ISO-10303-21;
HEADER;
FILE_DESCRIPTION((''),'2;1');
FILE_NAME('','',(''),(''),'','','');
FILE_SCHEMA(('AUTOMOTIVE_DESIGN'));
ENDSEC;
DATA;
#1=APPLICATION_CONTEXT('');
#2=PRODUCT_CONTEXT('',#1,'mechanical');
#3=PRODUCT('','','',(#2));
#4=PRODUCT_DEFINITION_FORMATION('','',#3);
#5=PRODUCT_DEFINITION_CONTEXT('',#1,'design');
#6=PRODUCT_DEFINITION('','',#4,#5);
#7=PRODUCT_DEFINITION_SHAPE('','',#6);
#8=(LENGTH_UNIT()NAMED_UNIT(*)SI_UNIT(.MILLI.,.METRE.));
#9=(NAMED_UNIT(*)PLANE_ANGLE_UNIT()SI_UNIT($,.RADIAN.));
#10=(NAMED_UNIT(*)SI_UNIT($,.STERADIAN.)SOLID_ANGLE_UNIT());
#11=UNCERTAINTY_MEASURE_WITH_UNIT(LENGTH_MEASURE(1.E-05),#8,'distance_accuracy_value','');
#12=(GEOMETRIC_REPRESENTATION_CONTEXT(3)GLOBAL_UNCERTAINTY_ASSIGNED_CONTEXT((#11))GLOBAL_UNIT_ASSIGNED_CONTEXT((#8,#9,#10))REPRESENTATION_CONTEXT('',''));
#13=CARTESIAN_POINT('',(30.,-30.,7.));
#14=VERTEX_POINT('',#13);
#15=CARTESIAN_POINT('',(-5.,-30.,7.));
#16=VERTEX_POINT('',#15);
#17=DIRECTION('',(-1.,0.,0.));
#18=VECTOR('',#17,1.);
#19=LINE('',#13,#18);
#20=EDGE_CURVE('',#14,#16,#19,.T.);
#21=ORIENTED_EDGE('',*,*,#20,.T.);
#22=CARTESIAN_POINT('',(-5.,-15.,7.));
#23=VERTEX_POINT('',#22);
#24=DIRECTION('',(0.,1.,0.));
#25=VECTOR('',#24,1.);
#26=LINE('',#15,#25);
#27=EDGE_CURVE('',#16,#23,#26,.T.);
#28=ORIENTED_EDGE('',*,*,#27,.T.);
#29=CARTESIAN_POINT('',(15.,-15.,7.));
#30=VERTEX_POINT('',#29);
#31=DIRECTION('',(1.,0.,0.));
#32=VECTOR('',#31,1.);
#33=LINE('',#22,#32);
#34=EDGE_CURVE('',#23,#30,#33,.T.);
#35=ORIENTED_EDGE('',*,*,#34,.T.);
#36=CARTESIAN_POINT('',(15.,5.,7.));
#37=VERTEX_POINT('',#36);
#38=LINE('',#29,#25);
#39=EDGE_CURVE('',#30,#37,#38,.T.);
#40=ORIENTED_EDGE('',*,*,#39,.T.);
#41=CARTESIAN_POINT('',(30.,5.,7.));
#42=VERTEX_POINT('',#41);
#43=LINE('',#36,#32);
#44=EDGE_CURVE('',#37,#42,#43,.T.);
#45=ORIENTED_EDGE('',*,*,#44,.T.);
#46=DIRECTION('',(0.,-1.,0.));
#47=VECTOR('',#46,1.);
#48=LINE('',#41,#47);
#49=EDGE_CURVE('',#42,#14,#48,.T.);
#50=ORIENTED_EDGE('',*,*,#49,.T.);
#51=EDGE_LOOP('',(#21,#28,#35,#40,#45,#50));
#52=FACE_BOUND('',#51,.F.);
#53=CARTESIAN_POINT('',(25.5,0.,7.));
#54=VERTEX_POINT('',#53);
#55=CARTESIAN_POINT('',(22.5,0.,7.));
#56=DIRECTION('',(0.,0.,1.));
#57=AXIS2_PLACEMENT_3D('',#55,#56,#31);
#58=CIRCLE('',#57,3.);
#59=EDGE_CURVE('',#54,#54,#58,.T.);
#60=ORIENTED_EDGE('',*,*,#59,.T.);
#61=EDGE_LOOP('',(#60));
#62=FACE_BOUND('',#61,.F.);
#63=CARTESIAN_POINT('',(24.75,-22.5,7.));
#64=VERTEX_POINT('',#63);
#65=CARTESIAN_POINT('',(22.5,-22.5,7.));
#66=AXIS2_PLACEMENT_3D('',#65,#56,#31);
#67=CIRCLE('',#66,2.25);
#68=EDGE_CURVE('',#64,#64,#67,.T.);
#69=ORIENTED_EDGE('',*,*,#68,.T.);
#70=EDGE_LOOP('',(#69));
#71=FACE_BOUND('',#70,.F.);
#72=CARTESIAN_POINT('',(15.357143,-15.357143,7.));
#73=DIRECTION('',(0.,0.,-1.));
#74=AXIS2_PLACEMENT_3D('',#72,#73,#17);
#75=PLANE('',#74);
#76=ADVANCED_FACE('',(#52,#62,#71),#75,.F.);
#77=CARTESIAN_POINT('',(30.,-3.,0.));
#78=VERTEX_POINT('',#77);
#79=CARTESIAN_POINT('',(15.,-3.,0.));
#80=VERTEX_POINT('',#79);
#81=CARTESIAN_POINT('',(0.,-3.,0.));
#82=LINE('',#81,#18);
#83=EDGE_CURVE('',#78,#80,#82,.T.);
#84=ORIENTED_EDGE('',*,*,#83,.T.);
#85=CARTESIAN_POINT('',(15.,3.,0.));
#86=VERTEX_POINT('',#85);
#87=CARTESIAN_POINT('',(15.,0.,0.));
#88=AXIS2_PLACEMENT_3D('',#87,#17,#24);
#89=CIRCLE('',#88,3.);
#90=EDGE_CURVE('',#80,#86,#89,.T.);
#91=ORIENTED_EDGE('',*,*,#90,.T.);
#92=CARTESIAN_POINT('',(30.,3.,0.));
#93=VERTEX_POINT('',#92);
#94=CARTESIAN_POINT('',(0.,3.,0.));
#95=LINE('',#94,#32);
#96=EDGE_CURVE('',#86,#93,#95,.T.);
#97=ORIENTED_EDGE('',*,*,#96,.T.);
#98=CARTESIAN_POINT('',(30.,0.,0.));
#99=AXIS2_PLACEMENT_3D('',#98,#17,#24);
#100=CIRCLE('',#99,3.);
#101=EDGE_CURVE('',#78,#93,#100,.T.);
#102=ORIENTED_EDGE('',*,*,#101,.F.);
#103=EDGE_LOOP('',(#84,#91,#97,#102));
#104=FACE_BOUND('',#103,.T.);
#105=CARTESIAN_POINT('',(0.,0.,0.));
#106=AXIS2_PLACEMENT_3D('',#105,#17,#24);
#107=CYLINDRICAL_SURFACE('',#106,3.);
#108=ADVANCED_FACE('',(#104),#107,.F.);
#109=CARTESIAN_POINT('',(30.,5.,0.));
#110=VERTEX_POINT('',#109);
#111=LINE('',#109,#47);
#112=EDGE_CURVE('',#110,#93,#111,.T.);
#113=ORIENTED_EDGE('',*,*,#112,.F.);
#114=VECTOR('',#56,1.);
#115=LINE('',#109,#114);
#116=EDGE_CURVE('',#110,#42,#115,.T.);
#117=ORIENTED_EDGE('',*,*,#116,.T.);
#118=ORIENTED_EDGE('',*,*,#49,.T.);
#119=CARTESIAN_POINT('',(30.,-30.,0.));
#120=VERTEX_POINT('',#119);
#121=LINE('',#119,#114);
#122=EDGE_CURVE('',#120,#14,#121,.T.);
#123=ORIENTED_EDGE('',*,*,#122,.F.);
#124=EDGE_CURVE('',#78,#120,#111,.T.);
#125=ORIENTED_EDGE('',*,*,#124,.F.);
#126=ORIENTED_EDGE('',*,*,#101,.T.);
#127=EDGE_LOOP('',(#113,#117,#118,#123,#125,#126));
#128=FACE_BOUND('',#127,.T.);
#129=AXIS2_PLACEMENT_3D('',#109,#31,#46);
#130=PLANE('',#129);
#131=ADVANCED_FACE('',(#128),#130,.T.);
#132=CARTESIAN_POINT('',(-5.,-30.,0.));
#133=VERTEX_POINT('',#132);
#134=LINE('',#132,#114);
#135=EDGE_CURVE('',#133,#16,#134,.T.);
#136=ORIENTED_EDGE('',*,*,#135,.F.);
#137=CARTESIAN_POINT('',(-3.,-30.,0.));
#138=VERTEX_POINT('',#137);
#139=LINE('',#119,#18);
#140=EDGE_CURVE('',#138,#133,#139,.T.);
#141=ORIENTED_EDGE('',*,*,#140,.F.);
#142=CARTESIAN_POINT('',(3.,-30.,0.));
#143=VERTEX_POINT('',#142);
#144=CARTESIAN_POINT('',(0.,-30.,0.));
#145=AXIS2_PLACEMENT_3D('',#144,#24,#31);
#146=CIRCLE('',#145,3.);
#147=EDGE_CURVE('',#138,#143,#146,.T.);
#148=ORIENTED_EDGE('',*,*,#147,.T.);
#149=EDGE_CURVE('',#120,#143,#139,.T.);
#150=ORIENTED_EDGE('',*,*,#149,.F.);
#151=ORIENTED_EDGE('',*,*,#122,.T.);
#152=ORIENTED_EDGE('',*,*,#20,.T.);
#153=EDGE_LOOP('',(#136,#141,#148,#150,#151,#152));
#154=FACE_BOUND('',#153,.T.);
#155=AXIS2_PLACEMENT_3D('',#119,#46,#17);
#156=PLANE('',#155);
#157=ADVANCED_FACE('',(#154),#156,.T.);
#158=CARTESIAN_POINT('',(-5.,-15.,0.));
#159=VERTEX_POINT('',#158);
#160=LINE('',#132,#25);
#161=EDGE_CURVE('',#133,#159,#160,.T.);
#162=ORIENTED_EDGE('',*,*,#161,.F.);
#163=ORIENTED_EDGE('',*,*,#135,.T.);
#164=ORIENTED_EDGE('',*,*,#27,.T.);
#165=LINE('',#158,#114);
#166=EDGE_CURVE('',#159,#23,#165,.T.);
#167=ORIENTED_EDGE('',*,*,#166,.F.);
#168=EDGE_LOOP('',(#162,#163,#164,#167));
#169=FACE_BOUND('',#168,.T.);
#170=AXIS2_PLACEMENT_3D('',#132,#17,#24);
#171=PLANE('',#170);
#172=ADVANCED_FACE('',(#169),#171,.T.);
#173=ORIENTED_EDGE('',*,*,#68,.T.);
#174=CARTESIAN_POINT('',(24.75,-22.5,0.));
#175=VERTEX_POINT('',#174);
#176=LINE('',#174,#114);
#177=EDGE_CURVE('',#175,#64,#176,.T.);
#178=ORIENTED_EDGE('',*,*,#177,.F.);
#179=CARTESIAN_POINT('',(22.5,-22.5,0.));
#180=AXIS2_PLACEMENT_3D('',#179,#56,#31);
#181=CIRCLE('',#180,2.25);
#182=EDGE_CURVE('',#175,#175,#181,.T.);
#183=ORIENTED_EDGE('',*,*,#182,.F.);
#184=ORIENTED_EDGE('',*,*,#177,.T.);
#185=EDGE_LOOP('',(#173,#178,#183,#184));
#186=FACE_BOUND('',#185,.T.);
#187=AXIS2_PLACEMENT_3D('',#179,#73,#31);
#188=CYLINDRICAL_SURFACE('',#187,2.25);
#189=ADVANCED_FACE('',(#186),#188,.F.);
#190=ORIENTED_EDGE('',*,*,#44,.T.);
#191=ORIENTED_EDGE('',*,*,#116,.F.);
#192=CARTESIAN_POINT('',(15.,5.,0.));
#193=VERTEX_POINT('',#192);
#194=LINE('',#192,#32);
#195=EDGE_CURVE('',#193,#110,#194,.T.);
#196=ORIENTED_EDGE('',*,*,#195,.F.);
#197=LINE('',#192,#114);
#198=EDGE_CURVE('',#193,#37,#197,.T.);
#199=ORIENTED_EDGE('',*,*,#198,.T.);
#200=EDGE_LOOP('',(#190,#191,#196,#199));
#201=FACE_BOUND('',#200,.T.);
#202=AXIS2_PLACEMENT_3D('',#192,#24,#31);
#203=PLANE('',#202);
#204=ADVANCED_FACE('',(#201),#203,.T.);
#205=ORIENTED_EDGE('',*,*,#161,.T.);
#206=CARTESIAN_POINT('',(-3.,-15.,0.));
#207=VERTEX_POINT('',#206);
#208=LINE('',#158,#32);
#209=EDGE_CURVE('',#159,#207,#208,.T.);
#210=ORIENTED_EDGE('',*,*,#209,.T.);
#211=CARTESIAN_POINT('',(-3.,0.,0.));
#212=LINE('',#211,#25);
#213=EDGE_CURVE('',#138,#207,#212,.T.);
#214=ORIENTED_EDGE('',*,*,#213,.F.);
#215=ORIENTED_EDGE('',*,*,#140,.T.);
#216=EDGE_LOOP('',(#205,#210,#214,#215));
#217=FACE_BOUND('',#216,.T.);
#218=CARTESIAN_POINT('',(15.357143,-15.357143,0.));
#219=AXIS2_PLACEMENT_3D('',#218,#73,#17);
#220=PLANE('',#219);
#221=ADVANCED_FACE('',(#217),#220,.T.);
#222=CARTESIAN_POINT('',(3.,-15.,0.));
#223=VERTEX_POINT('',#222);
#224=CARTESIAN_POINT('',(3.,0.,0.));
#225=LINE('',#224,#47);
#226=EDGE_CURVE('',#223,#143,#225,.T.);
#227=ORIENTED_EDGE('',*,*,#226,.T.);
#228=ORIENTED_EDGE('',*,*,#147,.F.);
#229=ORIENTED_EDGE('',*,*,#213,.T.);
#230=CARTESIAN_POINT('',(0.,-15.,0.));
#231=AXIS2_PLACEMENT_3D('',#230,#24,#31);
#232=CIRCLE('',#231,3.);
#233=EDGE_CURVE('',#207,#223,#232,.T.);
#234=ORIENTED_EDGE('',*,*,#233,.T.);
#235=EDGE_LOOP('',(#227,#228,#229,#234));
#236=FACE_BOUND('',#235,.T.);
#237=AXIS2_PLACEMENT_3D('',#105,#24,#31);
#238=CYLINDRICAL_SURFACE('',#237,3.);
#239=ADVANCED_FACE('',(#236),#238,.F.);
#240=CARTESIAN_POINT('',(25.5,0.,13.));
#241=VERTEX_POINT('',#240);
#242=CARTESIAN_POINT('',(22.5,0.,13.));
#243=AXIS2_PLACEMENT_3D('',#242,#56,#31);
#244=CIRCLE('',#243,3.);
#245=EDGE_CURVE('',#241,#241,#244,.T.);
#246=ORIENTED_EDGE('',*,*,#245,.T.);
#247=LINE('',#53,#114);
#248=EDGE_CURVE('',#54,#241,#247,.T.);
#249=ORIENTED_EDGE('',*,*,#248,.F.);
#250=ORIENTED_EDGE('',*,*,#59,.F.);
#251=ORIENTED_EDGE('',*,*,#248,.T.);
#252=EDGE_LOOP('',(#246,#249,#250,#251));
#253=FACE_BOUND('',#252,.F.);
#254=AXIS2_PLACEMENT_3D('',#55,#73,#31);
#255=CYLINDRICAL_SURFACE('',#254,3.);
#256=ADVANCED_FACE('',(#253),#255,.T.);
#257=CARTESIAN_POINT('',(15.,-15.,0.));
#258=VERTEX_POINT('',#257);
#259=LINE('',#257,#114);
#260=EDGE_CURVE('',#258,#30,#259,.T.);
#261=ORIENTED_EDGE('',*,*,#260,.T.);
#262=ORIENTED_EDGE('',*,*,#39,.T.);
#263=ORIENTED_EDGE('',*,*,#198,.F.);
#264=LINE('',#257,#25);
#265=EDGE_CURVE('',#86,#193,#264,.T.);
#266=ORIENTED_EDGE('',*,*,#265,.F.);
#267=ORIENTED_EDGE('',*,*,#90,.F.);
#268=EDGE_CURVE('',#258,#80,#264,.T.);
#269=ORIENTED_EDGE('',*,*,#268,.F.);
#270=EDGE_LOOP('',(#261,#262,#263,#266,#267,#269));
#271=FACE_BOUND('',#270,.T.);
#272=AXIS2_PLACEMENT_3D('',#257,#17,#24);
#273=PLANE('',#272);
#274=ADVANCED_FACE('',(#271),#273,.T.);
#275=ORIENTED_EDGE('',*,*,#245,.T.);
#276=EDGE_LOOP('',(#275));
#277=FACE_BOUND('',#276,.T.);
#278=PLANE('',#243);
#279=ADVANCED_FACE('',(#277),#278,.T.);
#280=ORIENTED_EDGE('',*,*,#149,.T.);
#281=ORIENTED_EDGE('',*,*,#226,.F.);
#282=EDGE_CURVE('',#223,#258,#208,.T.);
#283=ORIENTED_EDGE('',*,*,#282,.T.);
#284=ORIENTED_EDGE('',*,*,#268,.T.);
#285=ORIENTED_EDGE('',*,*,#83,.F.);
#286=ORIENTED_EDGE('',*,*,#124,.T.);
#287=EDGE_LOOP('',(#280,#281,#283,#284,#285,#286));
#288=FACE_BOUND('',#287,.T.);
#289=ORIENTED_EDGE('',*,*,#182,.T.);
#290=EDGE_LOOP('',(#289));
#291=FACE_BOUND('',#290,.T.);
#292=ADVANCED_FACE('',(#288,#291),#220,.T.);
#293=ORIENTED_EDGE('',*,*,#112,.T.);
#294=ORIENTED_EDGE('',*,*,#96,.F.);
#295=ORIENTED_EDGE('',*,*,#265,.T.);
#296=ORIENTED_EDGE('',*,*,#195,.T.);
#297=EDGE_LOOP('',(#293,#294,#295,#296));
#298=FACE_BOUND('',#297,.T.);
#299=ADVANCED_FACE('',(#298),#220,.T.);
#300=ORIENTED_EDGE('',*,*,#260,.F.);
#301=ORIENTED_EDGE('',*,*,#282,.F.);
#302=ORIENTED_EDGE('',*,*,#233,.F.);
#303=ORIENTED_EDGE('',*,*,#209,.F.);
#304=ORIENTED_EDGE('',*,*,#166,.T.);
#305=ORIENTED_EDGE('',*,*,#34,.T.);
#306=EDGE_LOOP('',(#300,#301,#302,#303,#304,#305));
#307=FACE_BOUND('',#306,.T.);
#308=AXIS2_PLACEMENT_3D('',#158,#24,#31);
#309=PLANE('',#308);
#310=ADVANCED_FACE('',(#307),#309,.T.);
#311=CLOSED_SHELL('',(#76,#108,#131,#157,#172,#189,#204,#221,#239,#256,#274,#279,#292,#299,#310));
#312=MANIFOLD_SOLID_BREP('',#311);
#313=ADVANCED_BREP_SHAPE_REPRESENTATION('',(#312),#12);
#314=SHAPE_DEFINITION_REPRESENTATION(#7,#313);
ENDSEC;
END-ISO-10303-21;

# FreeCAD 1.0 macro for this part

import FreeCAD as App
import Part
import Sketcher

V = App.Vector


def add_polygon(sketch, points):
    """Adds a closed chain of lines whose ends are joined by coincident constraints."""
    first, n = sketch.GeometryCount, len(points)
    for a, b in zip(points, points[1:] + points[:1]):
        sketch.addGeometry(Part.LineSegment(App.Vector(*a, 0), App.Vector(*b, 0)), False)
    for i in range(n):
        sketch.addConstraint(Sketcher.Constraint("Coincident", first + i, 2, first + (i + 1) % n, 1))

doc = App.newDocument("Part")
body = doc.addObject("PartDesign::Body", "Body")

# Sketch on XY plane
sketch1 = body.newObject("Sketcher::SketchObject", "Sketch")
sketch1.AttachmentSupport = (doc.getObject("XY_Plane"), [""])
sketch1.MapMode = "FlatFace"
add_polygon(sketch1, [(-5, -15), (-5, -30), (30, -30), (30, 5), (15, 5), (15, -15)])  # lines 0-5
sketch1.addGeometry(Part.Circle(V(22.5, -22.5, 0), V(0, 0, 1), 2.25), False)  # 6
sketch1.addConstraint([
    Sketcher.Constraint("Vertical", 0),
    Sketcher.Constraint("Horizontal", 1),
    Sketcher.Constraint("Vertical", 2),
    Sketcher.Constraint("Horizontal", 3),
    Sketcher.Constraint("Vertical", 4),
    Sketcher.Constraint("Horizontal", 5),
    Sketcher.Constraint("Equal", 3, 0),
    Sketcher.Constraint("Equal", 1, 2),
    Sketcher.Constraint("Diameter", 6, 4.5),
    Sketcher.Constraint("DistanceX", 1, 1, 1, 2, 35.0),
    Sketcher.Constraint("DistanceX", 3, 2, 3, 1, 15.0),
    Sketcher.Constraint("DistanceX", 0, 2, -1, 1, 5.0),
    Sketcher.Constraint("DistanceY", 0, 2, -1, 1, 30.0),
    Sketcher.Constraint("DistanceX", -1, 1, 6, 3, 22.5),
    Sketcher.Constraint("DistanceY", 6, 3, -1, 1, 22.5),
])
pad1 = body.newObject("PartDesign::Pad", "Pad")
pad1.Profile = sketch1
pad1.Length = 7

# Sketch on XZ plane
sketch2 = body.newObject("Sketcher::SketchObject", "Sketch001")
sketch2.AttachmentSupport = (doc.getObject("XZ_Plane"), [""])
sketch2.MapMode = "FlatFace"
sketch2.addGeometry(Part.Circle(V(0, 0, 0), V(0, 0, 1), 3), False)
sketch2.addConstraint([
    Sketcher.Constraint("Coincident", 0, 3, -1, 1),
    Sketcher.Constraint("Diameter", 0, 6.0),
])
pocket1 = body.newObject("PartDesign::Pocket", "Pocket")
pocket1.Profile = sketch2
pocket1.Type = "ThroughAll"
pocket1.Reversed = True

# Sketch on YZ plane
sketch3 = body.newObject("Sketcher::SketchObject", "Sketch002")
sketch3.AttachmentSupport = (doc.getObject("YZ_Plane"), [""])
sketch3.MapMode = "FlatFace"
sketch3.addGeometry(Part.Circle(V(0, 0, 0), V(0, 0, 1), 3), False)
sketch3.addConstraint([
    Sketcher.Constraint("Coincident", 0, 3, -1, 1),
    Sketcher.Constraint("Diameter", 0, 6.0),
])
pocket2 = body.newObject("PartDesign::Pocket", "Pocket001")
pocket2.Profile = sketch3
pocket2.Type = "ThroughAll"
pocket2.Reversed = True

# Sketch on XY plane
sketch4 = body.newObject("Sketcher::SketchObject", "Sketch003")
sketch4.AttachmentSupport = (doc.getObject("XY_Plane"), [""])
sketch4.MapMode = "FlatFace"
sketch4.AttachmentOffset = App.Placement(V(0, 0, 7), App.Rotation())
sketch4.addGeometry(Part.Circle(V(22.5, 0, 0), V(0, 0, 1), 3), False)
sketch4.addConstraint([
    Sketcher.Constraint("PointOnObject", 0, 3, -1),
    Sketcher.Constraint("Diameter", 0, 6.0),
    Sketcher.Constraint("DistanceX", -1, 1, 0, 3, 22.5),
])
pad2 = body.newObject("PartDesign::Pad", "Pad001")
pad2.Profile = sketch4
pad2.Length = 6

doc.recompute()
